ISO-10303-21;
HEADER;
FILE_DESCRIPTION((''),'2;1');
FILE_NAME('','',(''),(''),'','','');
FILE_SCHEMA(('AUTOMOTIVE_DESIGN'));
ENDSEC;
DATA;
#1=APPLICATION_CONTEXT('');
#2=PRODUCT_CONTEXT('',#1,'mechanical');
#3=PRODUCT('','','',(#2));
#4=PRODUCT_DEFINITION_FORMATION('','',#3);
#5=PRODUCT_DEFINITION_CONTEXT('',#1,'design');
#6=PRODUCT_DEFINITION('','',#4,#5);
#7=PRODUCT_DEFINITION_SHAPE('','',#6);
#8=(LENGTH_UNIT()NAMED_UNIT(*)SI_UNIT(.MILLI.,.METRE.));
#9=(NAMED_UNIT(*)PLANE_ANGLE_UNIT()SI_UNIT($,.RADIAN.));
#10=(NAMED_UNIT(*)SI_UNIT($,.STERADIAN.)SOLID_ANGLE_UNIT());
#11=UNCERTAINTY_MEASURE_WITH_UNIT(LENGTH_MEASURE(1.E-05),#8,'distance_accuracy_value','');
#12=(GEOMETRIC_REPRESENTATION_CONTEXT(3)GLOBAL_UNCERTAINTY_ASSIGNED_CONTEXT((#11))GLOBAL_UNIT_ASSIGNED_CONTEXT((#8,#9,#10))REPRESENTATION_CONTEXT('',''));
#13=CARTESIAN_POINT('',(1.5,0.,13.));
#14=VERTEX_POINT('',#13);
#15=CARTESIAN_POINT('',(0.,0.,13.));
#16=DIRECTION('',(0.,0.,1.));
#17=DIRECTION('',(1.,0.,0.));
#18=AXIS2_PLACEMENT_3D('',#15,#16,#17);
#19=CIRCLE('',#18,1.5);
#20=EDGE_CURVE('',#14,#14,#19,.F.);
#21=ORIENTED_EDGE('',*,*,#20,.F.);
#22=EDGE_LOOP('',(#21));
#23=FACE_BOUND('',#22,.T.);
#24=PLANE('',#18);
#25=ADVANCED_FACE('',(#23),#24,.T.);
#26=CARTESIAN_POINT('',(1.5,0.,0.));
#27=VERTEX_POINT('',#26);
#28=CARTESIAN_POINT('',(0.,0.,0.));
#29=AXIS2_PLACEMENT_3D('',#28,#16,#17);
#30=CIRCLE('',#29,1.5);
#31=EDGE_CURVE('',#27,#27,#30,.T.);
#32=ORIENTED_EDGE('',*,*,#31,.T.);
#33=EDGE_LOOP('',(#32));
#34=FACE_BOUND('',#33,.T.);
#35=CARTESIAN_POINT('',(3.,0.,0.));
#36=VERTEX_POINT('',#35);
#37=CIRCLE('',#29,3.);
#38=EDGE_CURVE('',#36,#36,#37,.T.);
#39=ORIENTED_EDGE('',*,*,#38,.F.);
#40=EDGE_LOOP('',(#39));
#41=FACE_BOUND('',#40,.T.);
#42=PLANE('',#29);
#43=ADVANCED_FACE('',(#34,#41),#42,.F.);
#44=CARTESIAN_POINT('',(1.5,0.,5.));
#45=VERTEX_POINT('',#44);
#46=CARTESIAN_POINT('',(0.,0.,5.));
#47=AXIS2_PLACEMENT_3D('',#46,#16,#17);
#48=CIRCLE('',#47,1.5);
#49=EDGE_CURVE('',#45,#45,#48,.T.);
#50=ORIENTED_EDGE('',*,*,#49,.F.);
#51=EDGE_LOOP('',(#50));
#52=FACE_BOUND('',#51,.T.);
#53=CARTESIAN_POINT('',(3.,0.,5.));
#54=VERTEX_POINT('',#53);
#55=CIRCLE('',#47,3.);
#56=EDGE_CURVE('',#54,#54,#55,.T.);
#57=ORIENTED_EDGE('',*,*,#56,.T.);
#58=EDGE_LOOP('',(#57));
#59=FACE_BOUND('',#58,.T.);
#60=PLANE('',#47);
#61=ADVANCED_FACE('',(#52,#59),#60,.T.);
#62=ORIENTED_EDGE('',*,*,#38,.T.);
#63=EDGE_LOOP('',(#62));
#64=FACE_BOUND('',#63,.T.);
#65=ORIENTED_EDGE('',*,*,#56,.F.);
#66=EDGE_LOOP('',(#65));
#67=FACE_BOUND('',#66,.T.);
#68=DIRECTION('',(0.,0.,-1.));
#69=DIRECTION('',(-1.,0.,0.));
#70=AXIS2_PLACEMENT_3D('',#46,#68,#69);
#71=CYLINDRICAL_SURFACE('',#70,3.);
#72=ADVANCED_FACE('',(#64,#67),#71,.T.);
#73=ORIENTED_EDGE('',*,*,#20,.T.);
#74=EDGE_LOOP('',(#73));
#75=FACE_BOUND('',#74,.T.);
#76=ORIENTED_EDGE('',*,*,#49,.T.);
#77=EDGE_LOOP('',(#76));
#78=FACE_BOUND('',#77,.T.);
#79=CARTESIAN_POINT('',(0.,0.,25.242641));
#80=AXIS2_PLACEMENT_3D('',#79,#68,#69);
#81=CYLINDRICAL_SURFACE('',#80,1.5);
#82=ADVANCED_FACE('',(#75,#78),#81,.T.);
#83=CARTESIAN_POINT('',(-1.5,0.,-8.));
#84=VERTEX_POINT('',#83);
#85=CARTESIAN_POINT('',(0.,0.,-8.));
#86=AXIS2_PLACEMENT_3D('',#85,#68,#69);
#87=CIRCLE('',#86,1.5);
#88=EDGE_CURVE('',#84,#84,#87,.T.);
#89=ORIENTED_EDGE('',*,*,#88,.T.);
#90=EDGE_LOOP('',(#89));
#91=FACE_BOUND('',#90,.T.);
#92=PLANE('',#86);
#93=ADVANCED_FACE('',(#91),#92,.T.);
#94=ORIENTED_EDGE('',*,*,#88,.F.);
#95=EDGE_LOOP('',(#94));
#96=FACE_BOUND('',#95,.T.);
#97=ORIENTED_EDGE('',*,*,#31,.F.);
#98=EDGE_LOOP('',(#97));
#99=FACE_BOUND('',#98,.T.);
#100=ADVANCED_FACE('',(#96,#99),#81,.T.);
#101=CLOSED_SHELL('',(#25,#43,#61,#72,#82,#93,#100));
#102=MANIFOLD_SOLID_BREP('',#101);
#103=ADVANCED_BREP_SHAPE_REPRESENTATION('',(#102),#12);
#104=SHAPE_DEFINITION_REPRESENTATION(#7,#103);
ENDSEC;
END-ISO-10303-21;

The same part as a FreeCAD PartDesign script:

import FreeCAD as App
import Part
import Sketcher

V = App.Vector

doc = App.newDocument("Part")
body = doc.addObject("PartDesign::Body", "Body")

sketch1 = body.newObject("Sketcher::SketchObject", "Sketch")
sketch1.AttachmentSupport = (doc.getObject("XY_Plane"), [""])
sketch1.MapMode = "FlatFace"
sketch1.addGeometry(Part.Circle(V(0, 0, 0), V(0, 0, 1), 3), False)
sketch1.addConstraint([
    Sketcher.Constraint("Coincident", 0, 3, -1, 1),
    Sketcher.Constraint("Diameter", 0, 6.0),
])
pad1 = body.newObject("PartDesign::Pad", "Pad")
pad1.Profile = sketch1
pad1.Length = 5

sketch2 = body.newObject("Sketcher::SketchObject", "Sketch001")
sketch2.AttachmentSupport = (doc.getObject("XY_Plane"), [""])
sketch2.MapMode = "FlatFace"
sketch2.addGeometry(Part.Circle(V(0, 0, 0), V(0, 0, 1), 1.5), False)
sketch2.addConstraint([
    Sketcher.Constraint("Coincident", 0, 3, -1, 1),
    Sketcher.Constraint("Diameter", 0, 3.0),
])
pad2 = body.newObject("PartDesign::Pad", "Pad001")
pad2.Profile = sketch2
pad2.Type = "TwoLengths"
pad2.Length = 8
pad2.Length2 = 13
pad2.Reversed = True

doc.recompute()
